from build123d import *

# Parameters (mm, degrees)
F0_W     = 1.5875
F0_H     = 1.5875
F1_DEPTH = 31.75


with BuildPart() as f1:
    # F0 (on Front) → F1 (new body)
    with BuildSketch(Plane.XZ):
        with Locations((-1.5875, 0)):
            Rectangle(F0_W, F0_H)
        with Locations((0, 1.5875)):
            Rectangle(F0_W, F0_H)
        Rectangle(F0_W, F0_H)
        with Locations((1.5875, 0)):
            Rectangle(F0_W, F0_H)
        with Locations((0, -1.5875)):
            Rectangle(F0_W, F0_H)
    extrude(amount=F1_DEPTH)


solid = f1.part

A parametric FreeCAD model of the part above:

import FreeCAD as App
import Part
import Sketcher
from FreeCAD import Vector
Q = App.Units.Quantity


def add_polygon(sketch, points):
    """Adds a closed chain of lines whose ends are joined by coincident constraints."""
    first, n = sketch.GeometryCount, len(points)
    for a, b in zip(points, points[1:] + points[:1]):
        sketch.addGeometry(Part.LineSegment(App.Vector(*a, 0), App.Vector(*b, 0)), False)
    for i in range(n):
        sketch.addConstraint(Sketcher.Constraint("Coincident", first + i, 2, first + (i + 1) % n, 1))

doc = App.newDocument("Part")
body = doc.addObject("PartDesign::Body", "Body")

sketch1 = body.newObject("Sketcher::SketchObject", "Sketch")
sketch1.AttachmentSupport = (doc.getObject("XZ_Plane"), [""])
sketch1.MapMode = "FlatFace"
add_polygon(sketch1, [(-2.4, 0.8), (-2.4, -0.8), (-0.8, -0.8), (-0.8, -2.4), (0.8, -2.4), (0.8, -0.8), (2.4, -0.8), (2.4, 0.8), (0.8, 0.8), (0.8, 2.4), (-0.8, 2.4), (-0.8, 0.8)])
sketch1.addConstraint(Sketcher.Constraint("Vertical", 0))
sketch1.addConstraint(Sketcher.Constraint("Horizontal", 1))
sketch1.addConstraint(Sketcher.Constraint("Vertical", 2))
sketch1.addConstraint(Sketcher.Constraint("Horizontal", 3))
sketch1.addConstraint(Sketcher.Constraint("Vertical", 4))
sketch1.addConstraint(Sketcher.Constraint("Horizontal", 5))
sketch1.addConstraint(Sketcher.Constraint("Vertical", 6))
sketch1.addConstraint(Sketcher.Constraint("Horizontal", 7))
sketch1.addConstraint(Sketcher.Constraint("Vertical", 8))
sketch1.addConstraint(Sketcher.Constraint("Horizontal", 9))
sketch1.addConstraint(Sketcher.Constraint("Vertical", 10))
sketch1.addConstraint(Sketcher.Constraint("Horizontal", 11))
sketch1.addConstraint(Sketcher.Constraint("Symmetric", 0, 2, 6, 2, -1, 1))
sketch1.addConstraint(Sketcher.Constraint("Symmetric", 2, 2, 8, 2, -1, 1))
sketch1.addConstraint(Sketcher.Constraint("Symmetric", 4, 2, 10, 2, -1, 1))
sketch1.addConstraint(Sketcher.Constraint("Symmetric", 1, 2, 4, 2, -2))
sketch1.addConstraint(Sketcher.Constraint("Equal", 1, 3))
sketch1.addConstraint(Sketcher.Constraint("Equal", 11, 0))
sketch1.addConstraint(Sketcher.Constraint("Equal", 0, 2))
sketch1.addConstraint(Sketcher.Constraint("DistanceX", 1, 1, 1, 2, Q("0.0625 in")))
pad1 = body.newObject("PartDesign::Pad", "Pad")
pad1.Profile = sketch1
pad1.Length = Q("1.25 in")

doc.recompute()
